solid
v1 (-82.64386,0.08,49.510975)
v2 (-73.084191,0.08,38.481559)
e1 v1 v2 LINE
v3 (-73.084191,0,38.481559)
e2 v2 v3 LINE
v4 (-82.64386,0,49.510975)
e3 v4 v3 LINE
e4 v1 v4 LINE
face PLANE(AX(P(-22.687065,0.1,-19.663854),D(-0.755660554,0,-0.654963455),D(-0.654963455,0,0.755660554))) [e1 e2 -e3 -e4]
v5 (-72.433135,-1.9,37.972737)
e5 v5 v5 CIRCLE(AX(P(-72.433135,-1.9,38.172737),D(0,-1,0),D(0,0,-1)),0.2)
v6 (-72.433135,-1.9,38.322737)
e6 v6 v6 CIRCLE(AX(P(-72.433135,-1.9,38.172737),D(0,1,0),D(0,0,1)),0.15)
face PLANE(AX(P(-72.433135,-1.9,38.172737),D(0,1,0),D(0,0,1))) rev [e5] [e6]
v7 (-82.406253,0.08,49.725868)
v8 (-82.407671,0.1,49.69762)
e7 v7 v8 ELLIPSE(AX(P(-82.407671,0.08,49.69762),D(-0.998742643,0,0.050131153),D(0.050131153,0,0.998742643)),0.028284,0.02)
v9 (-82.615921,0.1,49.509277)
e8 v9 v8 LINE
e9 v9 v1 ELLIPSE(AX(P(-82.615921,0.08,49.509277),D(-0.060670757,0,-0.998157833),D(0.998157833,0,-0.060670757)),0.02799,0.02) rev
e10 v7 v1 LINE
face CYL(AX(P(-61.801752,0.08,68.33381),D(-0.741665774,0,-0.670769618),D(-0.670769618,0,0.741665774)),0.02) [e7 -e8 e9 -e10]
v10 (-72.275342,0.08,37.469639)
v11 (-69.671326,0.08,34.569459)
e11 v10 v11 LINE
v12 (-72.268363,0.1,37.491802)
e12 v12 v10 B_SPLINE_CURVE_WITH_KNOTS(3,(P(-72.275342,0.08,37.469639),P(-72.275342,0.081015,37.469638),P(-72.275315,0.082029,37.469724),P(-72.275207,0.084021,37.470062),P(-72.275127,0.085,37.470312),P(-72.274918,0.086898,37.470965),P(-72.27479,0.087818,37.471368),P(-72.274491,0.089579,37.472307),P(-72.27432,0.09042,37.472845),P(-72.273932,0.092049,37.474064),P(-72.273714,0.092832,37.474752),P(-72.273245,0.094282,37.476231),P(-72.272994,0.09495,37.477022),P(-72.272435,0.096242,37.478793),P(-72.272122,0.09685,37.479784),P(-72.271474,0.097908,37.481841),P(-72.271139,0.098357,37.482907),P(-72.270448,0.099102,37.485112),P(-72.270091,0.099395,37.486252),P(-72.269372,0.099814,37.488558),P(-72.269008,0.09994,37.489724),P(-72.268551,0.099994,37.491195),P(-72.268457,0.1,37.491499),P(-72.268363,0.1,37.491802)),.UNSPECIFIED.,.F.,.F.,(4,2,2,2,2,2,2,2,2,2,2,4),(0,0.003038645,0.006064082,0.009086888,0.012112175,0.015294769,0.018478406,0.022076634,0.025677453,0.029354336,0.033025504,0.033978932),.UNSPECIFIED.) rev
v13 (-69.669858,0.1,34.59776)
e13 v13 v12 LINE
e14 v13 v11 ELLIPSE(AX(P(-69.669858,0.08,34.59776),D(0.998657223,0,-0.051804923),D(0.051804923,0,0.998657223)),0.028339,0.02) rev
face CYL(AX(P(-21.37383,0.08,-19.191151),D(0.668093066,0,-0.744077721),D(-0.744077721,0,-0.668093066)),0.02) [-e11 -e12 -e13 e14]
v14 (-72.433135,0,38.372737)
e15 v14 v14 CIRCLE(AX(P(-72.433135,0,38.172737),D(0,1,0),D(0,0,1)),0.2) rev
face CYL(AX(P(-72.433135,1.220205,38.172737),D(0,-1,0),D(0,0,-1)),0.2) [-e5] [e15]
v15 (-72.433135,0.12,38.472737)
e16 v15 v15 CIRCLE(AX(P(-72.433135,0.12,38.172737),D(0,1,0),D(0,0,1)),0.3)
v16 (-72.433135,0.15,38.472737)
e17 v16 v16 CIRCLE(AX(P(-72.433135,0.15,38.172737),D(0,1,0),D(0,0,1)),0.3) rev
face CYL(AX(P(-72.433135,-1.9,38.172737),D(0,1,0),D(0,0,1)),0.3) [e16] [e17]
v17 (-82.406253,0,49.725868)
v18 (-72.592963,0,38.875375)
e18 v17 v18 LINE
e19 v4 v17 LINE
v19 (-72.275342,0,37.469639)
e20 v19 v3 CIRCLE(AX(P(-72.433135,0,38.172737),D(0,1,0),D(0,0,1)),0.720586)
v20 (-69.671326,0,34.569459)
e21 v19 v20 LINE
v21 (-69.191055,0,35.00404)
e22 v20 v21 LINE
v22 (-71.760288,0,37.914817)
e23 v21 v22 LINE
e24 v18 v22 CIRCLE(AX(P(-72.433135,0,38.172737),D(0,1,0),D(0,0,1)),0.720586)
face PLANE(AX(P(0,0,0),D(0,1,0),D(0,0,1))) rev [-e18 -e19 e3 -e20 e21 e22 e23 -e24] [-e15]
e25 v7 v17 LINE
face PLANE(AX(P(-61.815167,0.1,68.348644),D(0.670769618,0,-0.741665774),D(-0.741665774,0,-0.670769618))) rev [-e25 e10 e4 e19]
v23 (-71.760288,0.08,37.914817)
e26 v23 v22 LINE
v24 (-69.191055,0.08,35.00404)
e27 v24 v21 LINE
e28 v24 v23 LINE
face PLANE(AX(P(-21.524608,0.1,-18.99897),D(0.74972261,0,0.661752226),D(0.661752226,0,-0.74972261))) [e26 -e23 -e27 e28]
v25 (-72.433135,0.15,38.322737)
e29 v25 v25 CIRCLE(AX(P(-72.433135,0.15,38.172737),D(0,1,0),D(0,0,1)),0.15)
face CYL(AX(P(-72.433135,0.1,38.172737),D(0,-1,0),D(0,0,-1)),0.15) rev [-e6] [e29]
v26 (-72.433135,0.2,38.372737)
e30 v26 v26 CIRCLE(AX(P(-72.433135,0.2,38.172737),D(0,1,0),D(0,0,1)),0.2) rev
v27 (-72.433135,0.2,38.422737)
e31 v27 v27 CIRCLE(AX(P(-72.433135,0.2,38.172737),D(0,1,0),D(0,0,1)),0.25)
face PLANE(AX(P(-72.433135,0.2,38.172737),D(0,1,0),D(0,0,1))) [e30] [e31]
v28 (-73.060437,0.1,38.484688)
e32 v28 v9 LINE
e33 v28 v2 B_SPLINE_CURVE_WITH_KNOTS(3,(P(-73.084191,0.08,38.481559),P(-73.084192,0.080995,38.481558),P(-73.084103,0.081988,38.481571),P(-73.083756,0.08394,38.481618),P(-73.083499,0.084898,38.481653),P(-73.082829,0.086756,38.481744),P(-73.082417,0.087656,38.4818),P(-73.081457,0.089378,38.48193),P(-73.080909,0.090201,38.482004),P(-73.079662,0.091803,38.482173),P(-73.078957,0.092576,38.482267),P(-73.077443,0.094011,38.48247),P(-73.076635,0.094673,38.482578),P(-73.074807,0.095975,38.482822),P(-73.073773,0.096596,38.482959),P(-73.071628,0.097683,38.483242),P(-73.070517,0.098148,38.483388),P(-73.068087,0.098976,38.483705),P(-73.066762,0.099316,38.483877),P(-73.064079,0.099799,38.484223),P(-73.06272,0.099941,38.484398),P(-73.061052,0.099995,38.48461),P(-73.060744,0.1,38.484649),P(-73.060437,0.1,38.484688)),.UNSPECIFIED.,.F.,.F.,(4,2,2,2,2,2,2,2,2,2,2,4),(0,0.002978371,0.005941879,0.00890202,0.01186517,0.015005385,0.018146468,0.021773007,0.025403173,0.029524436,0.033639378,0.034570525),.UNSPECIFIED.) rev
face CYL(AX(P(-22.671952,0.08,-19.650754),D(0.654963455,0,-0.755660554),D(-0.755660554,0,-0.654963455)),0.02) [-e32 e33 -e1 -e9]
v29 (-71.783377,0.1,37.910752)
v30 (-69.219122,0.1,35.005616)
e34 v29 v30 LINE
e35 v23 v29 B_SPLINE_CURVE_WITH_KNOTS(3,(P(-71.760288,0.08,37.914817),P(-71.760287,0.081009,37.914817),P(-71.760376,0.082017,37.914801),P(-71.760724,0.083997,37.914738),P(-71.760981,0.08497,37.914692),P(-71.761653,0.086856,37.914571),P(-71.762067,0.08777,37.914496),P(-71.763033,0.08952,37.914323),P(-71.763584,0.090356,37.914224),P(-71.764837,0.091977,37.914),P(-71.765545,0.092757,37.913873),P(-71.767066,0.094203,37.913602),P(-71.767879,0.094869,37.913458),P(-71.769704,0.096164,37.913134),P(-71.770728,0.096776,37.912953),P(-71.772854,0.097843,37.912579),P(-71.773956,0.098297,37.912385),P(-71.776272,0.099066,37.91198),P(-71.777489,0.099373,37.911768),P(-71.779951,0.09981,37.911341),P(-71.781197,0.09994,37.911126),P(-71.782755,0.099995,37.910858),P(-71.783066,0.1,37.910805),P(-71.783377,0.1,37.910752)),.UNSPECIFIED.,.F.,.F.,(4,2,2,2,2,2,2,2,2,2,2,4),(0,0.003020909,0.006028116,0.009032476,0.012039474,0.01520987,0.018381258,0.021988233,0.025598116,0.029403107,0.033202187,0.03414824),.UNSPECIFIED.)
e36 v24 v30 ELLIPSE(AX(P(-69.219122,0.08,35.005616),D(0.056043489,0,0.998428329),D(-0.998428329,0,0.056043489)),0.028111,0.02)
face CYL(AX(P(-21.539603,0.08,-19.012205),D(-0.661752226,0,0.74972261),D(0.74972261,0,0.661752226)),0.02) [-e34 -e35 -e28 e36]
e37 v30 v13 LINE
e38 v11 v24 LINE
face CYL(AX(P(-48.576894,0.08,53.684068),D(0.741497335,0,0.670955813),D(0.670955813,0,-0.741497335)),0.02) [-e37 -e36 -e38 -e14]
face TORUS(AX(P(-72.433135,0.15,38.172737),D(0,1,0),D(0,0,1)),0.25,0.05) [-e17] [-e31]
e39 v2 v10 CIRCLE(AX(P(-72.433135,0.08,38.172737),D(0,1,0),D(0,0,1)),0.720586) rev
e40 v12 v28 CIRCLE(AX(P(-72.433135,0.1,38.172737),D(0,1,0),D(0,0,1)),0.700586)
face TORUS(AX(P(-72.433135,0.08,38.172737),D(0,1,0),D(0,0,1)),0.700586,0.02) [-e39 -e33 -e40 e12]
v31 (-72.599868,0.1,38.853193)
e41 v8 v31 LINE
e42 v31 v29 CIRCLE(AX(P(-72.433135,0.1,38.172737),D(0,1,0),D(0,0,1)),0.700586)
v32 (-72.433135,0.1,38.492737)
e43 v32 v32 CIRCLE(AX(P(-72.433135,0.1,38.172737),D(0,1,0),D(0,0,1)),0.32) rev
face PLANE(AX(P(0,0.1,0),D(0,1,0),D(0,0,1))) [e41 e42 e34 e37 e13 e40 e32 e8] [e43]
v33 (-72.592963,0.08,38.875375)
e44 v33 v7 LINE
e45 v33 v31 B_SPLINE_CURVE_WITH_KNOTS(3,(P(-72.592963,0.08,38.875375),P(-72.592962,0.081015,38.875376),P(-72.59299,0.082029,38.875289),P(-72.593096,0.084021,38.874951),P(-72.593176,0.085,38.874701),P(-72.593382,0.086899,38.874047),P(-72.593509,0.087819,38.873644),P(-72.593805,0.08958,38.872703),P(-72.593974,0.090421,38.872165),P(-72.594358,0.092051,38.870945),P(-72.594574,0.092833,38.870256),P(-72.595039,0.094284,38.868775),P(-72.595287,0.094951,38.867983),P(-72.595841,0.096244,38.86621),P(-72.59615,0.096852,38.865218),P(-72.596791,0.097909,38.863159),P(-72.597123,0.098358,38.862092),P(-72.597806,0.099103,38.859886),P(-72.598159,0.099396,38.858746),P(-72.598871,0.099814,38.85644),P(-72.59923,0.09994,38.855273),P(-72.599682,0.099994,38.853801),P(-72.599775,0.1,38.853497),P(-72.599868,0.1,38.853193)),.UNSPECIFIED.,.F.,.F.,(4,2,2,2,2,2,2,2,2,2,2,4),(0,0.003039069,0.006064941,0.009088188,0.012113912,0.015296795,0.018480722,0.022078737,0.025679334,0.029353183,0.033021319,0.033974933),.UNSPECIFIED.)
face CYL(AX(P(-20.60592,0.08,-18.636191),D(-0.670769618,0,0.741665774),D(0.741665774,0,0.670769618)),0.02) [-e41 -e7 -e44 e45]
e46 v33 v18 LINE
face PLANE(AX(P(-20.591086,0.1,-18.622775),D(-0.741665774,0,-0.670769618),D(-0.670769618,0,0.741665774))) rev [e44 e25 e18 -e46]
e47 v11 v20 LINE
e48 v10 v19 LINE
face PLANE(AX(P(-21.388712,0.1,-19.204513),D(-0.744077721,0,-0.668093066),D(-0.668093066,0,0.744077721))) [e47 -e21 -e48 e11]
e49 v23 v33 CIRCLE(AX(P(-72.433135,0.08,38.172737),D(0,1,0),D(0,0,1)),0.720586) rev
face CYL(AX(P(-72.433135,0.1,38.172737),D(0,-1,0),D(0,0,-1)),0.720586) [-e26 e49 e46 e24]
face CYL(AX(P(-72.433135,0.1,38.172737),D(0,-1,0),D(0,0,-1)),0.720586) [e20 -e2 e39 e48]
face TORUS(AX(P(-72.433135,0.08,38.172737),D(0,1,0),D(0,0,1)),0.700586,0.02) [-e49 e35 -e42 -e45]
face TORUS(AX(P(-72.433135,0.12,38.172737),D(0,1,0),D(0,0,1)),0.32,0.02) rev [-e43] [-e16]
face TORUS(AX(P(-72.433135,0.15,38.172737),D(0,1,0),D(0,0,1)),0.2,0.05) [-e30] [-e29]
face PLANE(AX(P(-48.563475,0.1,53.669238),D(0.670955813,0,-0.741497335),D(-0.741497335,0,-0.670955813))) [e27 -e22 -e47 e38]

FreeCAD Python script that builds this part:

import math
import FreeCAD as App
import Part
import Sketcher

V = App.Vector


def edges_at(feature, points):
    """Names of the edges that pass closest to the given points."""
    edges = feature.Shape.Edges
    near = lambda p: min(range(len(edges)), key=lambda i: edges[i].distToShape(Part.Vertex(*p))[0])
    return sorted({f"Edge{near(p) + 1}" for p in points})

doc = App.newDocument("Part")
body = doc.addObject("PartDesign::Body", "Body")

sketch1 = body.newObject("Sketcher::SketchObject", "Sketch")
sketch1.AttachmentSupport = (doc.getObject("XZ_Plane"), [""])
sketch1.MapMode = "FlatFace"
sketch1.addGeometry(Part.LineSegment(V(-82.406253, 49.725868, 0), V(-72.592963, 38.875375, 0)), False)
sketch1.addGeometry(Part.ArcOfCircle(Part.Circle(V(-72.433135, 38.172737, 0), V(0, 0, 1), 0.720586), math.radians(-20.973173), math.radians(102.814942)), False)
sketch1.addGeometry(Part.LineSegment(V(-71.760288, 37.914817, 0), V(-69.191055, 35.00404, 0)), False)
sketch1.addGeometry(Part.LineSegment(V(-69.191055, 35.00404, 0), V(-69.671326, 34.569459, 0)), False)
sketch1.addGeometry(Part.LineSegment(V(-69.671326, 34.569459, 0), V(-72.275342, 37.469639, 0)), False)
sketch1.addGeometry(Part.ArcOfCircle(Part.Circle(V(-72.433135, 38.172737, 0), V(0, 0, 1), 0.720586), math.radians(154.62315), math.radians(282.649049)), False)
sketch1.addGeometry(Part.LineSegment(V(-73.084191, 38.481559, 0), V(-82.64386, 49.510975, 0)), False)
sketch1.addGeometry(Part.LineSegment(V(-82.64386, 49.510975, 0), V(-82.406253, 49.725868, 0)), False)
sketch1.addGeometry(Part.Circle(V(-72.433135, 38.172737, 0), V(0, 0, 1), 0.15), False)
sketch1.addConstraint(Sketcher.Constraint("Coincident", 0, 2, 1, 2))
sketch1.addConstraint(Sketcher.Constraint("Coincident", 1, 1, 2, 1))
sketch1.addConstraint(Sketcher.Constraint("Coincident", 2, 2, 3, 1))
sketch1.addConstraint(Sketcher.Constraint("Coincident", 3, 2, 4, 1))
sketch1.addConstraint(Sketcher.Constraint("Coincident", 4, 2, 5, 2))
sketch1.addConstraint(Sketcher.Constraint("Coincident", 5, 1, 6, 1))
sketch1.addConstraint(Sketcher.Constraint("Coincident", 6, 2, 7, 1))
sketch1.addConstraint(Sketcher.Constraint("Coincident", 7, 2, 0, 1))
sketch1.addConstraint(Sketcher.Constraint("Coincident", 5, 3, 1, 3))
sketch1.addConstraint(Sketcher.Constraint("Coincident", 8, 3, 1, 3))
sketch1.addConstraint(Sketcher.Constraint("Equal", 1, 5))
sketch1.addConstraint(Sketcher.Constraint("Perpendicular", 0, 7))
sketch1.addConstraint(Sketcher.Constraint("Diameter", 8, 0.3))
sketch1.addConstraint(Sketcher.Constraint("Radius", 1, 0.720586))
sketch1.addConstraint(Sketcher.Constraint("DistanceY", 0, 2, 6, 2, 10.6356))
sketch1.addConstraint(Sketcher.Constraint("Distance", 2, 3.882471))
sketch1.addConstraint(Sketcher.Constraint("Distance", 6, 14.595729))
sketch1.addConstraint(Sketcher.Constraint("Distance", 7, 0.320368))
sketch1.addConstraint(Sketcher.Constraint("DistanceX", 1, 1, -1, 1, 71.760288))
sketch1.addConstraint(Sketcher.Constraint("DistanceY", -1, 1, 2, 2, 35.00404))
sketch1.addConstraint(Sketcher.Constraint("DistanceY", -1, 1, 3, 2, 34.569459))
sketch1.addConstraint(Sketcher.Constraint("DistanceX", 4, 2, -1, 1, 72.275342))
sketch1.addConstraint(Sketcher.Constraint("DistanceY", -1, 1, 4, 2, 37.469639))
sketch1.addConstraint(Sketcher.Constraint("DistanceX", 5, 1, -1, 1, 73.084191))
sketch1.addConstraint(Sketcher.Constraint("DistanceY", -1, 1, 5, 1, 38.481559))
sketch1.addConstraint(Sketcher.Constraint("DistanceX", 6, 2, -1, 1, 82.64386))
sketch1.addConstraint(Sketcher.Constraint("DistanceX", 3, 2, 2, 2, 0.480271))
pad1 = body.newObject("PartDesign::Pad", "Pad")
pad1.Profile = sketch1
pad1.Length = 0.1
pad1.Reversed = True

sketch2 = body.newObject("Sketcher::SketchObject", "Sketch001")
sketch2.AttachmentSupport = (doc.getObject("XZ_Plane"), [""])
sketch2.MapMode = "FlatFace"
sketch2.AttachmentOffset = App.Placement(V(0, 0, -0.1), App.Rotation())
sketch2.addGeometry(Part.Circle(V(-72.433135, 38.172737, 0), V(0, 0, 1), 0.3), False)
sketch2.addGeometry(Part.Circle(V(-72.433135, 38.172737, 0), V(0, 0, 1), 0.15), False)
sketch2.addConstraint(Sketcher.Constraint("Coincident", 1, 3, 0, 3))
sketch2.addConstraint(Sketcher.Constraint("Diameter", 0, 0.6))
sketch2.addConstraint(Sketcher.Constraint("Diameter", 1, 0.3))
sketch2.addConstraint(Sketcher.Constraint("DistanceX", 0, 3, -1, 1, 72.433135))
sketch2.addConstraint(Sketcher.Constraint("DistanceY", -1, 1, 0, 3, 38.172737))
pad2 = body.newObject("PartDesign::Pad", "Pad001")
pad2.Profile = sketch2
pad2.Type = "TwoLengths"
pad2.Length = 0.1
pad2.Length2 = 2
pad2.Reversed = True
doc.recompute()

fillet = body.newObject("PartDesign::Fillet", "Fillet")
fillet.Base = (pad2, edges_at(pad2, [(-72.583, 0.2, 38.173), (-72.733, 0.2, 38.173)]))
fillet.Radius = 0.05
doc.recompute()

fillet2 = body.newObject("PartDesign::Fillet", "Fillet001")
fillet2.Base = (fillet, edges_at(fillet, [
    (-77.5, 0.1, 44.301),
    (-71.889, 0.1, 38.645),
    (-70.476, 0.1, 36.459),
    (-69.431, 0.1, 34.787),
    (-70.973, 0.1, 36.02),
    (-72.733, 0.1, 38.173),
    (-72.996, 0.1, 37.723),
    (-77.864, 0.1, 43.996),
    (-82.525, 0.1, 49.618),
]))
fillet2.Radius = 0.02

sketch3 = body.newObject("Sketcher::SketchObject", "Sketch002")
sketch3.AttachmentSupport = (doc.getObject("XZ_Plane"), [""])
sketch3.MapMode = "FlatFace"
sketch3.AttachmentOffset = App.Placement(V(0, 0, 1.9), App.Rotation())
sketch3.addGeometry(Part.Circle(V(-72.433135, 38.172737, 0), V(0, 0, 1), 0.431408), False)
sketch3.addGeometry(Part.Circle(V(-72.433135, 38.172737, 0), V(0, 0, 1), 0.2), False)
sketch3.addConstraint(Sketcher.Constraint("Coincident", 1, 3, 0, 3))
sketch3.addConstraint(Sketcher.Constraint("Diameter", 1, 0.4))
sketch3.addConstraint(Sketcher.Constraint("Diameter", 0, 0.862815))
sketch3.addConstraint(Sketcher.Constraint("DistanceX", 0, 3, -1, 1, 72.433135))
sketch3.addConstraint(Sketcher.Constraint("DistanceY", -1, 1, 0, 3, 38.172737))
pocket1 = body.newObject("PartDesign::Pocket", "Pocket")
pocket1.Profile = sketch3
pocket1.Length = 1.9

doc.recompute()
